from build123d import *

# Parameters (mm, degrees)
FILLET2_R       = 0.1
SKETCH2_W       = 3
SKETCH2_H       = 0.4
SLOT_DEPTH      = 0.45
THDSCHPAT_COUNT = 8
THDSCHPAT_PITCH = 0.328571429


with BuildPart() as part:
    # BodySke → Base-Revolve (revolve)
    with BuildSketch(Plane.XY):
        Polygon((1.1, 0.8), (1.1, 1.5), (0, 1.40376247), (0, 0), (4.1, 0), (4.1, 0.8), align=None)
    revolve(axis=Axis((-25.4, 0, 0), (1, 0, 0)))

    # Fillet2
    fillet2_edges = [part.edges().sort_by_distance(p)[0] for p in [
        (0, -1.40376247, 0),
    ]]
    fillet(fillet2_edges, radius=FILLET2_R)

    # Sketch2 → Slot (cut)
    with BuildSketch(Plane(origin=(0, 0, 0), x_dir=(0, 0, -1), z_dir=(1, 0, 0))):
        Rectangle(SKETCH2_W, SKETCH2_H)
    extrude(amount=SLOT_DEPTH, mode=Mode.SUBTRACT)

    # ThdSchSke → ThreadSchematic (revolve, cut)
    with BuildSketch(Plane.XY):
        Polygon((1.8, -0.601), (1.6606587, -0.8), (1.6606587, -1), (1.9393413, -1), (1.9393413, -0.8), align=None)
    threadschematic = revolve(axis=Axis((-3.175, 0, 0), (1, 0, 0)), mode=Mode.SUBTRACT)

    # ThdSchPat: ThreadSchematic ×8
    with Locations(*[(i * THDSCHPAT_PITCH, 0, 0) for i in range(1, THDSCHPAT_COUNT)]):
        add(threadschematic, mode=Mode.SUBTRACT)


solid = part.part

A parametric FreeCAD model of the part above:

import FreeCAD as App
import Part
import Sketcher

V = App.Vector
Q = App.Units.Quantity


def edges_at(feature, points):
    """Names of the edges that pass closest to the given points."""
    edges = feature.Shape.Edges
    near = lambda p: min(range(len(edges)), key=lambda i: edges[i].distToShape(Part.Vertex(*p))[0])
    return sorted({f"Edge{near(p) + 1}" for p in points})


def add_polygon(sketch, points):
    """Adds a closed chain of lines whose ends are joined by coincident constraints."""
    first, n = sketch.GeometryCount, len(points)
    for a, b in zip(points, points[1:] + points[:1]):
        sketch.addGeometry(Part.LineSegment(App.Vector(*a, 0), App.Vector(*b, 0)), False)
    for i in range(n):
        sketch.addConstraint(Sketcher.Constraint("Coincident", first + i, 2, first + (i + 1) % n, 1))

doc = App.newDocument("Part")
body = doc.addObject("PartDesign::Body", "Body")

sketch1 = body.newObject("Sketcher::SketchObject", "Sketch")
sketch1.AttachmentSupport = (doc.getObject("XY_Plane"), [""])
sketch1.MapMode = "FlatFace"
add_polygon(sketch1, [(1.1, 0.8), (1.1, 1.5), (0, 1.403762), (0, 0), (4.1, 0), (4.1, 0.8)])
sketch1.addConstraint(Sketcher.Constraint("Vertical", 0))
sketch1.addConstraint(Sketcher.Constraint("Vertical", 2))
sketch1.addConstraint(Sketcher.Constraint("Horizontal", 3))
sketch1.addConstraint(Sketcher.Constraint("Vertical", 4))
sketch1.addConstraint(Sketcher.Constraint("Horizontal", 5))
sketch1.addConstraint(Sketcher.Constraint("Coincident", 2, 2, -1, 1))
sketch1.addConstraint(Sketcher.Constraint("DistanceX", 5, 2, 5, 1, Q("3 mm")))
sketch1.addConstraint(Sketcher.Constraint("Angle", 1, Q("-175 deg")))
sketch1.addConstraint(Sketcher.Constraint("DistanceX", 3, 1, 3, 2, Q("4.1 mm")))
sketch1.addConstraint(Sketcher.Constraint("DistanceY", 0, 1, 0, 2, Q("0.7 mm")))
sketch1.addConstraint(Sketcher.Constraint("DistanceY", 4, 1, 4, 2, Q("0.8 mm")))
revolution = body.newObject("PartDesign::Revolution", "Revolution")
revolution.Profile = sketch1
revolution.ReferenceAxis = (sketch1, ["H_Axis"])
revolution.Angle = 360
doc.recompute()

fillet = body.newObject("PartDesign::Fillet", "Fillet")
fillet.Base = (revolution, edges_at(revolution, [(0, -1.404, 0)]))
fillet.Radius = 0.1

sketch2 = body.newObject("Sketcher::SketchObject", "Sketch001")
sketch2.AttachmentSupport = (doc.getObject("YZ_Plane"), [""])
sketch2.MapMode = "FlatFace"
add_polygon(sketch2, [(0.2, 1.5), (-0.2, 1.5), (-0.2, -1.5), (0.2, -1.5)])
sketch2.addConstraint(Sketcher.Constraint("Horizontal", 0))
sketch2.addConstraint(Sketcher.Constraint("Vertical", 1))
sketch2.addConstraint(Sketcher.Constraint("Horizontal", 2))
sketch2.addConstraint(Sketcher.Constraint("Vertical", 3))
sketch2.addConstraint(Sketcher.Constraint("Symmetric", 0, 2, 2, 2, -1, 1))
sketch2.addConstraint(Sketcher.Constraint("DistanceY", 1, 2, 1, 1, Q("3 mm")))
sketch2.addConstraint(Sketcher.Constraint("DistanceX", 0, 2, 0, 1, Q("0.4 mm")))
pocket1 = body.newObject("PartDesign::Pocket", "Pocket")
pocket1.Profile = sketch2
pocket1.Length = 0.45
pocket1.Reversed = True

sketch3 = body.newObject("Sketcher::SketchObject", "Sketch002")
sketch3.AttachmentSupport = (doc.getObject("XY_Plane"), [""])
sketch3.MapMode = "FlatFace"
add_polygon(sketch3, [(1.8, -0.601), (1.660659, -0.8), (1.660659, -1), (1.939341, -1), (1.939341, -0.8)])
sketch3.addConstraint(Sketcher.Constraint("Vertical", 1))
sketch3.addConstraint(Sketcher.Constraint("Horizontal", 2))
sketch3.addConstraint(Sketcher.Constraint("Vertical", 3))
sketch3.addConstraint(Sketcher.Constraint("Horizontal", 0, 2, 3, 2))
sketch3.addConstraint(Sketcher.Constraint("Equal", 0, 4))
sketch3.addConstraint(Sketcher.Constraint("Angle", 0, Q("-125 deg")))
sketch3.addConstraint(Sketcher.Constraint("DistanceY", 1, 2, 1, 1, Q("0.2 mm")))
sketch3.addConstraint(Sketcher.Constraint("DistanceY", 1, 2, -1, 1, Q("1 mm")))
sketch3.addConstraint(Sketcher.Constraint("DistanceX", -1, 1, 4, 2, Q("1.8 mm")))
sketch3.addConstraint(Sketcher.Constraint("DistanceY", 4, 2, -1, 1, Q("0.601 mm")))
groove = body.newObject("PartDesign::Groove", "Groove")
groove.Profile = sketch3
groove.ReferenceAxis = (sketch3, ["H_Axis"])
groove.Angle = 360
doc.recompute()

linearpattern = body.newObject("PartDesign::LinearPattern", "LinearPattern")
linearpattern.Originals = [groove]
linearpattern.Direction = (doc.getObject("X_Axis"), [""])
linearpattern.Mode = "offset"
linearpattern.Offset = 0.328571
linearpattern.Occurrences = 8
body.Tip = linearpattern

doc.recompute()
